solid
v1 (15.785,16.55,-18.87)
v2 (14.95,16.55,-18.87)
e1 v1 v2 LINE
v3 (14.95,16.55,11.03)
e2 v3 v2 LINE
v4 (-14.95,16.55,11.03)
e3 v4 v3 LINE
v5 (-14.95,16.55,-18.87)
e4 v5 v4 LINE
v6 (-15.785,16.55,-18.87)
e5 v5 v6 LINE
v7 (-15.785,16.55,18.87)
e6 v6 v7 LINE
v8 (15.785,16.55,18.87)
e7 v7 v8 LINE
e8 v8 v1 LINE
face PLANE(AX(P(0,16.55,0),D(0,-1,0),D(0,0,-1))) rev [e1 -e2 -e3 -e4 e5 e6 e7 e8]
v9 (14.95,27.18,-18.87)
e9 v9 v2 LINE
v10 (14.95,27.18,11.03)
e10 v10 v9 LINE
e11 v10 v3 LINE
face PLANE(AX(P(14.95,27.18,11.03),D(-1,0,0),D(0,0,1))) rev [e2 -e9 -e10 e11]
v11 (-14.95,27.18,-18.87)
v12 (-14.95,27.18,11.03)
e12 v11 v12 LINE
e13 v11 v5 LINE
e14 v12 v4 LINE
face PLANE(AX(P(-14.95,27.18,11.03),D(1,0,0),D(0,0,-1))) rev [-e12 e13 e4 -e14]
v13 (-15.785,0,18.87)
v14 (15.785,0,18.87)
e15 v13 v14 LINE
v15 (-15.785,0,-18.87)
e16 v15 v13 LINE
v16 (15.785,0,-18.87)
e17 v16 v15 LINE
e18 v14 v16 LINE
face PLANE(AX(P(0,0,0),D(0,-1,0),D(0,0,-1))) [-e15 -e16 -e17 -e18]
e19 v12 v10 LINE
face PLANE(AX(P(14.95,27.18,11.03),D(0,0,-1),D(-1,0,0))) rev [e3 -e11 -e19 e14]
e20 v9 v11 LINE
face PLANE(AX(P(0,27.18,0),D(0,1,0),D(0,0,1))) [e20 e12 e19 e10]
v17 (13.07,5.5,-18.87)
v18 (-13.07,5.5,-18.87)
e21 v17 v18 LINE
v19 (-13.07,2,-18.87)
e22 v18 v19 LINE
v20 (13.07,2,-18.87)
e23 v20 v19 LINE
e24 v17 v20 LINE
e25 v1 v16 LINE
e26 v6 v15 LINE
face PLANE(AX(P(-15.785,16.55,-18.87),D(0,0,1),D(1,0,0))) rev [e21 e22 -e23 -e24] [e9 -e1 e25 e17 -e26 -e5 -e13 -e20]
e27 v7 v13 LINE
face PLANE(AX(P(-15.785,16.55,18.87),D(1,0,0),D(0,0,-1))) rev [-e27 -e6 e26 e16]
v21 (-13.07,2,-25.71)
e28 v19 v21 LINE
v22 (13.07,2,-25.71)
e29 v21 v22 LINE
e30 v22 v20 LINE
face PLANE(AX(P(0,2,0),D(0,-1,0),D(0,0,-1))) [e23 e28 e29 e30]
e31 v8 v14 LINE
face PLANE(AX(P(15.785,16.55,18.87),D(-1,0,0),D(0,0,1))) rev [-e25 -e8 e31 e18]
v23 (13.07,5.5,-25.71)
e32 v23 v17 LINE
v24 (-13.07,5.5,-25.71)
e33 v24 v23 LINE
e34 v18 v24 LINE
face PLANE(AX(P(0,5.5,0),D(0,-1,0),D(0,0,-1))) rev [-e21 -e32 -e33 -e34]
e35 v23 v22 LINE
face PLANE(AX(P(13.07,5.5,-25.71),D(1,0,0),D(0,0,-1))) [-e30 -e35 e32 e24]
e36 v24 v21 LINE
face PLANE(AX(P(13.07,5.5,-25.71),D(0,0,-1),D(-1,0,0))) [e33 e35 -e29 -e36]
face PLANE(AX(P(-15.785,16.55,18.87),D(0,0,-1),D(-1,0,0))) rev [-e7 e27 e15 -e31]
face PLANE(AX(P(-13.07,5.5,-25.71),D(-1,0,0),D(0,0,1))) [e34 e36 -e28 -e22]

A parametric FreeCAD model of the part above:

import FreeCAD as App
import Part
import Sketcher
Q = App.Units.Quantity

doc = App.newDocument("Part")
body = doc.addObject("PartDesign::Body", "Body")

sketch1 = doc.addObject("Sketcher::SketchObject", "Sketch")
body.addObject(sketch1)
sketch1.AttachmentSupport = (doc.XZ_Plane, [""])
sketch1.MapMode = "FlatFace"
sketch1.addGeometry(Part.LineSegment(App.Vector(-16, -19, 0), App.Vector(-16, 19, 0)), False)
sketch1.addGeometry(Part.LineSegment(App.Vector(-16, 19, 0), App.Vector(16, 19, 0)), False)
sketch1.addGeometry(Part.LineSegment(App.Vector(16, 19, 0), App.Vector(16, -19, 0)), False)
sketch1.addGeometry(Part.LineSegment(App.Vector(16, -19, 0), App.Vector(-16, -19, 0)), False)
sketch1.addConstraint(Sketcher.Constraint("Coincident", 0, 2, 1, 1))
sketch1.addConstraint(Sketcher.Constraint("Coincident", 1, 2, 2, 1))
sketch1.addConstraint(Sketcher.Constraint("Coincident", 2, 2, 3, 1))
sketch1.addConstraint(Sketcher.Constraint("Coincident", 3, 2, 0, 1))
sketch1.addConstraint(Sketcher.Constraint("Vertical", 0))
sketch1.addConstraint(Sketcher.Constraint("Horizontal", 1))
sketch1.addConstraint(Sketcher.Constraint("Vertical", 2))
sketch1.addConstraint(Sketcher.Constraint("Horizontal", 3))
sketch1.addConstraint(Sketcher.Constraint("Symmetric", 0, 2, 2, 2, -1, 1))
sketch1.addConstraint(Sketcher.Constraint("DistanceX", 1, 1, 1, 2, Q("31.57 mm")))
sketch1.addConstraint(Sketcher.Constraint("DistanceY", 0, 1, 0, 2, Q("37.74 mm")))
pad1 = doc.addObject("PartDesign::Pad", "Pad")
body.addObject(pad1)
pad1.Profile = sketch1
pad1.Length = 16.55
pad1.Reversed = True

sketch2 = doc.addObject("Sketcher::SketchObject", "Sketch001")
body.addObject(sketch2)
sketch2.AttachmentSupport = (doc.XZ_Plane, [""])
sketch2.MapMode = "FlatFace"
sketch2.AttachmentOffset = App.Placement(App.Vector(0, 0, -16.55), App.Rotation())
sketch2.addGeometry(Part.LineSegment(App.Vector(-15, -19, 0), App.Vector(-15, 11, 0)), False)
sketch2.addGeometry(Part.LineSegment(App.Vector(-15, 11, 0), App.Vector(15, 11, 0)), False)
sketch2.addGeometry(Part.LineSegment(App.Vector(15, 11, 0), App.Vector(15, -19, 0)), False)
sketch2.addGeometry(Part.LineSegment(App.Vector(15, -19, 0), App.Vector(-15, -19, 0)), False)
sketch2.addConstraint(Sketcher.Constraint("Coincident", 0, 2, 1, 1))
sketch2.addConstraint(Sketcher.Constraint("Coincident", 1, 2, 2, 1))
sketch2.addConstraint(Sketcher.Constraint("Coincident", 2, 2, 3, 1))
sketch2.addConstraint(Sketcher.Constraint("Coincident", 3, 2, 0, 1))
sketch2.addConstraint(Sketcher.Constraint("Vertical", 0))
sketch2.addConstraint(Sketcher.Constraint("Horizontal", 1))
sketch2.addConstraint(Sketcher.Constraint("Vertical", 2))
sketch2.addConstraint(Sketcher.Constraint("Horizontal", 3))
sketch2.addConstraint(Sketcher.Constraint("Equal", 3, 0))
sketch2.addConstraint(Sketcher.Constraint("DistanceX", 1, 1, 1, 2, Q("29.9 mm")))
sketch2.addConstraint(Sketcher.Constraint("DistanceX", 0, 2, -1, 1, Q("14.95 mm")))
sketch2.addConstraint(Sketcher.Constraint("DistanceY", -1, 1, 0, 2, Q("11.03 mm")))
pad2 = doc.addObject("PartDesign::Pad", "Pad001")
body.addObject(pad2)
pad2.Profile = sketch2
pad2.Length = 10.63
pad2.Reversed = True

sketch3 = doc.addObject("Sketcher::SketchObject", "Sketch002")
body.addObject(sketch3)
sketch3.AttachmentSupport = (doc.XZ_Plane, [""])
sketch3.MapMode = "FlatFace"
sketch3.AttachmentOffset = App.Placement(App.Vector(0, 0, -2), App.Rotation())
sketch3.addGeometry(Part.LineSegment(App.Vector(-13, -19, 0), App.Vector(-13, -26, 0)), False)
sketch3.addGeometry(Part.LineSegment(App.Vector(-13, -26, 0), App.Vector(13, -26, 0)), False)
sketch3.addGeometry(Part.LineSegment(App.Vector(13, -26, 0), App.Vector(13, -19, 0)), False)
sketch3.addGeometry(Part.LineSegment(App.Vector(13, -19, 0), App.Vector(-13, -19, 0)), False)
sketch3.addConstraint(Sketcher.Constraint("Coincident", 0, 2, 1, 1))
sketch3.addConstraint(Sketcher.Constraint("Coincident", 1, 2, 2, 1))
sketch3.addConstraint(Sketcher.Constraint("Coincident", 2, 2, 3, 1))
sketch3.addConstraint(Sketcher.Constraint("Coincident", 3, 2, 0, 1))
sketch3.addConstraint(Sketcher.Constraint("Vertical", 0))
sketch3.addConstraint(Sketcher.Constraint("Horizontal", 1))
sketch3.addConstraint(Sketcher.Constraint("Vertical", 2))
sketch3.addConstraint(Sketcher.Constraint("Horizontal", 3))
sketch3.addConstraint(Sketcher.Constraint("DistanceX", 1, 1, 1, 2, Q("26.14 mm")))
sketch3.addConstraint(Sketcher.Constraint("DistanceY", 0, 2, 0, 1, Q("6.84 mm")))
sketch3.addConstraint(Sketcher.Constraint("DistanceX", 0, 2, -1, 1, Q("13.07 mm")))
sketch3.addConstraint(Sketcher.Constraint("DistanceY", 0, 2, -1, 1, Q("25.71 mm")))
pad3 = doc.addObject("PartDesign::Pad", "Pad002")
body.addObject(pad3)
pad3.Profile = sketch3
pad3.Length = 3.5
pad3.Reversed = True

doc.recompute()
